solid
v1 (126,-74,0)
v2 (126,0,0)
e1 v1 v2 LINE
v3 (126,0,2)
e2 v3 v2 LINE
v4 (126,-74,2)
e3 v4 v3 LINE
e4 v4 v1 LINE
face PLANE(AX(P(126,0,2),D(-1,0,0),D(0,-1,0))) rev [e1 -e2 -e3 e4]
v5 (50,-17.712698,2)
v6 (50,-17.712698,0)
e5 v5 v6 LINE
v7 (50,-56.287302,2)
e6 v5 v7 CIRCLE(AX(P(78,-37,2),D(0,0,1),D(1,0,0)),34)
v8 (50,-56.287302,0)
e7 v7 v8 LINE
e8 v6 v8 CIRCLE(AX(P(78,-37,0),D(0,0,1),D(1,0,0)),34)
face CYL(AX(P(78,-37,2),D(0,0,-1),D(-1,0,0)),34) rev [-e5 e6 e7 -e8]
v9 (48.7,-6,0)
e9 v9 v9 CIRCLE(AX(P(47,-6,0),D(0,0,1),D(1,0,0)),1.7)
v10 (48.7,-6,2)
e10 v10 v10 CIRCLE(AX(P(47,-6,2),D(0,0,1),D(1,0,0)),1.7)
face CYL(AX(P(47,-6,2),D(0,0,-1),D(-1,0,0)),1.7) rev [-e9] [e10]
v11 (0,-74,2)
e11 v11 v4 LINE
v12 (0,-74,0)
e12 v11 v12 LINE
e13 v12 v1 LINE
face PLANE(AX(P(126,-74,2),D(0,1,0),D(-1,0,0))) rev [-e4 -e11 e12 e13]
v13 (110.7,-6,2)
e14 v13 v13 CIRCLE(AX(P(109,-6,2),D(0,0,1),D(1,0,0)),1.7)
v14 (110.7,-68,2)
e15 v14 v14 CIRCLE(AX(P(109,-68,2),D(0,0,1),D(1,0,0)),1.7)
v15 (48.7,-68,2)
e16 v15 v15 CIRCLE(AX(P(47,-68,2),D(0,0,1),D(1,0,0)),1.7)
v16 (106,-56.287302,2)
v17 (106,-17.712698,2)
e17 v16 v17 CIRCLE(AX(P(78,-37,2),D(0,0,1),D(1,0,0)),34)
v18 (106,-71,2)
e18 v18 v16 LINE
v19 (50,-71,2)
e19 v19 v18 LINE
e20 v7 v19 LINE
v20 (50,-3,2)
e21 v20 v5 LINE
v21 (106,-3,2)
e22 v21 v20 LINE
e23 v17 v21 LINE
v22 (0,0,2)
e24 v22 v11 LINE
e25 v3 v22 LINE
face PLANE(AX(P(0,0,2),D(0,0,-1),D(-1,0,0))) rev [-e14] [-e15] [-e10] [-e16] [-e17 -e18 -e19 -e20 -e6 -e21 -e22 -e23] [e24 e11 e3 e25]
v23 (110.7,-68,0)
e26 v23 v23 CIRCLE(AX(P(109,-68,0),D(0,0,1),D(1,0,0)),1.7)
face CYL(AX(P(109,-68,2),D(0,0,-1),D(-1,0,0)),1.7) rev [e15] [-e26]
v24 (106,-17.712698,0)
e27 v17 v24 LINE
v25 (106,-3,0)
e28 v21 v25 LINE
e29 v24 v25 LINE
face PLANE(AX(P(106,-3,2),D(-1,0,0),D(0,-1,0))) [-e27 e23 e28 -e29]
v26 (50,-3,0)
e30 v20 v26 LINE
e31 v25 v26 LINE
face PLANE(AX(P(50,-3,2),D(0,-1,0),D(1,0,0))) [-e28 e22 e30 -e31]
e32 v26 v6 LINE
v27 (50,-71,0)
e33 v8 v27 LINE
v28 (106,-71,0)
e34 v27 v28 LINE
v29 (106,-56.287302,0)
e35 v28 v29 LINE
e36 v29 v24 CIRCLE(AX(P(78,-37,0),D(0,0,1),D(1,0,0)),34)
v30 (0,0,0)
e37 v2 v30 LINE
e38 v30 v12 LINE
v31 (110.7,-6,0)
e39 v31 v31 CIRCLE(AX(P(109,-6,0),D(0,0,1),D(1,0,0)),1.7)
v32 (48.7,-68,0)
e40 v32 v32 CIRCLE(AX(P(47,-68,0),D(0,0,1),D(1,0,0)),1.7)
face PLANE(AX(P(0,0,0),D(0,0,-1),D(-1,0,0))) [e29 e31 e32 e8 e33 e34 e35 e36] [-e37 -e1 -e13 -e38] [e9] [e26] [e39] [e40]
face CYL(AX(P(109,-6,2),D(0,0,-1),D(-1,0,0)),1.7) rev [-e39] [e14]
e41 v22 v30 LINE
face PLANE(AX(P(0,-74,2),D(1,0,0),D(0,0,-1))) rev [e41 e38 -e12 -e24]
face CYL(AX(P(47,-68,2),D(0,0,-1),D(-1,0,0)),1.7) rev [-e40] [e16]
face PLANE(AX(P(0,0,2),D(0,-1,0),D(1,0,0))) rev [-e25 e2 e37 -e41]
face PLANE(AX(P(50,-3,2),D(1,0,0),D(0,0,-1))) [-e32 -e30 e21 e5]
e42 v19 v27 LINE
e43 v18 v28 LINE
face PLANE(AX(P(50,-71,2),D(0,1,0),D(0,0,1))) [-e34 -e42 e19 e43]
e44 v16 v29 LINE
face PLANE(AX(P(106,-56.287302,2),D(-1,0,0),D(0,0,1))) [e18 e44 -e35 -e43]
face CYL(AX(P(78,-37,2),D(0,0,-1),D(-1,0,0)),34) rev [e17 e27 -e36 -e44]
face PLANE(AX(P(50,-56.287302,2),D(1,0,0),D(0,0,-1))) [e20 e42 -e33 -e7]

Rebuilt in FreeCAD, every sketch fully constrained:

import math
import FreeCAD as App
import Part
import Sketcher
from FreeCAD import Vector
Q = App.Units.Quantity


def add_polygon(sketch, points):
    """Adds a closed chain of lines whose ends are joined by coincident constraints."""
    first, n = sketch.GeometryCount, len(points)
    for a, b in zip(points, points[1:] + points[:1]):
        sketch.addGeometry(Part.LineSegment(App.Vector(*a, 0), App.Vector(*b, 0)), False)
    for i in range(n):
        sketch.addConstraint(Sketcher.Constraint("Coincident", first + i, 2, first + (i + 1) % n, 1))

doc = App.newDocument("Part")
body = doc.addObject("PartDesign::Body", "Body")

# Sketch on XY plane
sketch1 = doc.addObject("Sketcher::SketchObject", "Sketch")
body.addObject(sketch1)
sketch1.AttachmentSupport = (doc.XY_Plane, [""])
sketch1.MapMode = "FlatFace"
add_polygon(sketch1, [(0, 0), (0, -74), (126, -74), (126, 0)])  # lines 0-3
sketch1.addGeometry(Part.Circle(Vector(47, -68, 0), Vector(0, 0, 1), 1.7), False)  # 4
sketch1.addGeometry(Part.Circle(Vector(109, -68, 0), Vector(0, 0, 1), 1.7), False)  # 5
sketch1.addGeometry(Part.Circle(Vector(47, -6, 0), Vector(0, 0, 1), 1.7), False)  # 6
sketch1.addGeometry(Part.LineSegment(Vector(50, -17.7, 0), Vector(50, -3, 0)), False)  # 7
sketch1.addGeometry(Part.LineSegment(Vector(50, -3, 0), Vector(106, -3, 0)), False)  # 8
sketch1.addGeometry(Part.LineSegment(Vector(106, -3, 0), Vector(106, -17.7, 0)), False)  # 9
sketch1.addGeometry(Part.ArcOfCircle(Part.Circle(Vector(78, -37, 0), Vector(0, 0, 1), 34), math.radians(-35), math.radians(35)), False)  # 10
sketch1.addGeometry(Part.LineSegment(Vector(106, -56.3, 0), Vector(106, -71, 0)), False)  # 11
sketch1.addGeometry(Part.LineSegment(Vector(106, -71, 0), Vector(50, -71, 0)), False)  # 12
sketch1.addGeometry(Part.LineSegment(Vector(50, -71, 0), Vector(50, -56.3, 0)), False)  # 13
sketch1.addGeometry(Part.ArcOfCircle(Part.Circle(Vector(78, -37, 0), Vector(0, 0, 1), 34), math.radians(145), math.radians(215)), False)  # 14
sketch1.addGeometry(Part.Circle(Vector(109, -6, 0), Vector(0, 0, 1), 1.7), False)  # 15
sketch1.addConstraint(Sketcher.Constraint("Coincident", 7, 2, 8, 1))
sketch1.addConstraint(Sketcher.Constraint("Coincident", 8, 2, 9, 1))
sketch1.addConstraint(Sketcher.Constraint("Coincident", 9, 2, 10, 2))
sketch1.addConstraint(Sketcher.Constraint("Coincident", 10, 1, 11, 1))
sketch1.addConstraint(Sketcher.Constraint("Coincident", 11, 2, 12, 1))
sketch1.addConstraint(Sketcher.Constraint("Coincident", 12, 2, 13, 1))
sketch1.addConstraint(Sketcher.Constraint("Coincident", 13, 2, 14, 2))
sketch1.addConstraint(Sketcher.Constraint("Coincident", 14, 1, 7, 1))
sketch1.addConstraint(Sketcher.Constraint("Vertical", 0))
sketch1.addConstraint(Sketcher.Constraint("Horizontal", 1))
sketch1.addConstraint(Sketcher.Constraint("Vertical", 2))
sketch1.addConstraint(Sketcher.Constraint("Horizontal", 3))
sketch1.addConstraint(Sketcher.Constraint("Vertical", 7))
sketch1.addConstraint(Sketcher.Constraint("Horizontal", 8))
sketch1.addConstraint(Sketcher.Constraint("Vertical", 9))
sketch1.addConstraint(Sketcher.Constraint("Vertical", 11))
sketch1.addConstraint(Sketcher.Constraint("Horizontal", 12))
sketch1.addConstraint(Sketcher.Constraint("Vertical", 13))
sketch1.addConstraint(Sketcher.Constraint("Coincident", 3, 2, -1, 1))
sketch1.addConstraint(Sketcher.Constraint("Coincident", 14, 3, 10, 3))
sketch1.addConstraint(Sketcher.Constraint("Equal", 4, 5))
sketch1.addConstraint(Sketcher.Constraint("Equal", 5, 6))
sketch1.addConstraint(Sketcher.Constraint("Equal", 10, 14))
sketch1.addConstraint(Sketcher.Constraint("Equal", 6, 15))
sketch1.addConstraint(Sketcher.Constraint("Horizontal", 4, 3, 5, 3))
sketch1.addConstraint(Sketcher.Constraint("Horizontal", 6, 3, 15, 3))
sketch1.addConstraint(Sketcher.Constraint("Horizontal", 10, 1, 13, 2))
sketch1.addConstraint(Sketcher.Constraint("Horizontal", 9, 2, 14, 1))
sketch1.addConstraint(Sketcher.Constraint("Vertical", 4, 3, 6, 3))
sketch1.addConstraint(Sketcher.Constraint("Vertical", 5, 3, 15, 3))
sketch1.addConstraint(Sketcher.Constraint("Vertical", 9, 2, 10, 1))
sketch1.addConstraint(Sketcher.Constraint("Equal", 9, 11))
sketch1.addConstraint(Sketcher.Constraint("Radius", 10, Q("34 mm")))
sketch1.addConstraint(Sketcher.Constraint("Diameter", 4, Q("3.4 mm")))
sketch1.addConstraint(Sketcher.Constraint("DistanceX", 1, 1, 1, 2, Q("126 mm")))
sketch1.addConstraint(Sketcher.Constraint("DistanceX", 8, 1, 8, 2, Q("56 mm")))
sketch1.addConstraint(Sketcher.Constraint("DistanceY", 0, 2, 0, 1, Q("74 mm")))
sketch1.addConstraint(Sketcher.Constraint("DistanceX", -1, 1, 4, 3, Q("47 mm")))
sketch1.addConstraint(Sketcher.Constraint("DistanceY", 4, 3, -1, 1, Q("68 mm")))
sketch1.addConstraint(Sketcher.Constraint("DistanceX", -1, 1, 5, 3, Q("109 mm")))
sketch1.addConstraint(Sketcher.Constraint("DistanceY", 6, 3, -1, 1, Q("6 mm")))
sketch1.addConstraint(Sketcher.Constraint("DistanceX", -1, 1, 10, 3, Q("78 mm")))
sketch1.addConstraint(Sketcher.Constraint("DistanceY", 10, 3, -1, 1, Q("37 mm")))
sketch1.addConstraint(Sketcher.Constraint("DistanceY", 7, 2, -1, 1, Q("3 mm")))
pad1 = doc.addObject("PartDesign::Pad", "Pad")
body.addObject(pad1)
pad1.Profile = sketch1
pad1.Length = 2

doc.recompute()
